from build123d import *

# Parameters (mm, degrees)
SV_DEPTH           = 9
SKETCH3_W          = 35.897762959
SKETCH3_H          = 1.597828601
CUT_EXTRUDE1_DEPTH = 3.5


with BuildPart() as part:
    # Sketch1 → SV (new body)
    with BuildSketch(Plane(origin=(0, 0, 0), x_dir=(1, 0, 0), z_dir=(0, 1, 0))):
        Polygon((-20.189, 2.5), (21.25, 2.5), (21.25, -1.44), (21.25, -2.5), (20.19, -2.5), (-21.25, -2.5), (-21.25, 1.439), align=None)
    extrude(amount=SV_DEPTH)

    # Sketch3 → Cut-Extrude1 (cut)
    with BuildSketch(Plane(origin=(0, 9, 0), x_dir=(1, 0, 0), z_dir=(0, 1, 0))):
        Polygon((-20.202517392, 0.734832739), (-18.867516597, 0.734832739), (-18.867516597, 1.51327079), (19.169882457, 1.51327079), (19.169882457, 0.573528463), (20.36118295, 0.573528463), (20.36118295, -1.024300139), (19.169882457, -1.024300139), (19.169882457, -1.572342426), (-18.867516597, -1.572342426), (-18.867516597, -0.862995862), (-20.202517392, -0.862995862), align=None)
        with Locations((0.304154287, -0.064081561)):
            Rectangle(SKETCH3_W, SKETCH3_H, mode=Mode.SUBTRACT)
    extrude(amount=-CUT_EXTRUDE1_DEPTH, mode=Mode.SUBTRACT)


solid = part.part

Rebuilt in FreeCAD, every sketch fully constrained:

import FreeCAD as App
import Part
import Sketcher
Q = App.Units.Quantity


def add_polygon(sketch, points):
    """Adds a closed chain of lines whose ends are joined by coincident constraints."""
    first, n = sketch.GeometryCount, len(points)
    for a, b in zip(points, points[1:] + points[:1]):
        sketch.addGeometry(Part.LineSegment(App.Vector(*a, 0), App.Vector(*b, 0)), False)
    for i in range(n):
        sketch.addConstraint(Sketcher.Constraint("Coincident", first + i, 2, first + (i + 1) % n, 1))

doc = App.newDocument("Part")
body = doc.addObject("PartDesign::Body", "Body")

sketch1 = doc.addObject("Sketcher::SketchObject", "Sketch")
body.addObject(sketch1)
sketch1.AttachmentSupport = (doc.XZ_Plane, [""])
sketch1.MapMode = "FlatFace"
add_polygon(sketch1, [(21.2, -2.5), (-20.2, -2.5), (-21.2, -1.4), (-21.2, 2.5), (21.2, 2.5)])
sketch1.addConstraint([
    Sketcher.Constraint("Horizontal", 0),
    Sketcher.Constraint("Vertical", 2),
    Sketcher.Constraint("Horizontal", 3),
    Sketcher.Constraint("Vertical", 4),
    Sketcher.Constraint("Symmetric", 2, 2, 4, 2, -1, 1),
    Sketcher.Constraint("DistanceY", 4, 2, 4, 1, 5.0),
    Sketcher.Constraint("Angle", 1, Q("135 deg")),
    Sketcher.Constraint("DistanceX", 3, 1, 3, 2, 42.5),
    Sketcher.Constraint("DistanceX", 0, 2, 0, 1, 41.439),
])
pad1 = doc.addObject("PartDesign::Pad", "Pad")
body.addObject(pad1)
pad1.Profile = sketch1
pad1.Length = 9
pad1.Reversed = True

sketch2 = doc.addObject("Sketcher::SketchObject", "Sketch001")
body.addObject(sketch2)
sketch2.AttachmentSupport = (doc.XZ_Plane, [""])
sketch2.MapMode = "FlatFace"
sketch2.AttachmentOffset = App.Placement(App.Vector(0, 0, -9), App.Rotation())
add_polygon(sketch2, [(-18.9, -0.7), (-20.2, -0.7), (-20.2, 0.9), (-18.9, 0.9), (-18.9, 1.6), (19.2, 1.6), (19.2, 1), (20.4, 1), (20.4, -0.6), (19.2, -0.6), (19.2, -1.5), (-18.9, -1.5)])
add_polygon(sketch2, [(-17.6, 0.9), (-17.6, -0.7), (18.3, -0.7), (18.3, 0.9)])
sketch2.addConstraint([
    Sketcher.Constraint("Horizontal", 0),
    Sketcher.Constraint("Vertical", 1),
    Sketcher.Constraint("Horizontal", 2),
    Sketcher.Constraint("Vertical", 3),
    Sketcher.Constraint("Horizontal", 4),
    Sketcher.Constraint("Vertical", 5),
    Sketcher.Constraint("Horizontal", 6),
    Sketcher.Constraint("Vertical", 7),
    Sketcher.Constraint("Horizontal", 8),
    Sketcher.Constraint("Vertical", 9),
    Sketcher.Constraint("Horizontal", 10),
    Sketcher.Constraint("Vertical", 11),
    Sketcher.Constraint("Vertical", 12),
    Sketcher.Constraint("Horizontal", 13),
    Sketcher.Constraint("Vertical", 14),
    Sketcher.Constraint("Horizontal", 15),
    Sketcher.Constraint("Horizontal", 11, 2, 12, 2),
    Sketcher.Constraint("Horizontal", 2, 2, 14, 2),
    Sketcher.Constraint("Vertical", 5, 2, 8, 2),
    Sketcher.Constraint("Vertical", 3, 2, 10, 2),
    Sketcher.Constraint("Equal", 1, 7),
    Sketcher.Constraint("DistanceX", 0, 2, 0, 1, 1.335001),
    Sketcher.Constraint("DistanceX", 4, 1, 4, 2, 38.037399),
    Sketcher.Constraint("DistanceX", 6, 1, 6, 2, 1.1913),
    Sketcher.Constraint("DistanceY", 1, 1, 1, 2, 1.597829),
    Sketcher.Constraint("DistanceY", 11, 1, 11, 2, 0.778438),
    Sketcher.Constraint("DistanceY", -1, 1, 5, 2, 1.0243),
    Sketcher.Constraint("DistanceX", 13, 1, 13, 2, 35.897763),
    Sketcher.Constraint("DistanceY", 3, 1, 3, 2, 0.709347),
    Sketcher.Constraint("DistanceY", 5, 2, 5, 1, 0.548042),
    Sketcher.Constraint("DistanceX", 11, 2, 12, 2, 1.222789),
    Sketcher.Constraint("DistanceX", 0, 2, -1, 1, 20.202517),
])
pocket1 = doc.addObject("PartDesign::Pocket", "Pocket")
body.addObject(pocket1)
pocket1.Profile = sketch2
pocket1.Length = 3.5
pocket1.Reversed = True

doc.recompute()
